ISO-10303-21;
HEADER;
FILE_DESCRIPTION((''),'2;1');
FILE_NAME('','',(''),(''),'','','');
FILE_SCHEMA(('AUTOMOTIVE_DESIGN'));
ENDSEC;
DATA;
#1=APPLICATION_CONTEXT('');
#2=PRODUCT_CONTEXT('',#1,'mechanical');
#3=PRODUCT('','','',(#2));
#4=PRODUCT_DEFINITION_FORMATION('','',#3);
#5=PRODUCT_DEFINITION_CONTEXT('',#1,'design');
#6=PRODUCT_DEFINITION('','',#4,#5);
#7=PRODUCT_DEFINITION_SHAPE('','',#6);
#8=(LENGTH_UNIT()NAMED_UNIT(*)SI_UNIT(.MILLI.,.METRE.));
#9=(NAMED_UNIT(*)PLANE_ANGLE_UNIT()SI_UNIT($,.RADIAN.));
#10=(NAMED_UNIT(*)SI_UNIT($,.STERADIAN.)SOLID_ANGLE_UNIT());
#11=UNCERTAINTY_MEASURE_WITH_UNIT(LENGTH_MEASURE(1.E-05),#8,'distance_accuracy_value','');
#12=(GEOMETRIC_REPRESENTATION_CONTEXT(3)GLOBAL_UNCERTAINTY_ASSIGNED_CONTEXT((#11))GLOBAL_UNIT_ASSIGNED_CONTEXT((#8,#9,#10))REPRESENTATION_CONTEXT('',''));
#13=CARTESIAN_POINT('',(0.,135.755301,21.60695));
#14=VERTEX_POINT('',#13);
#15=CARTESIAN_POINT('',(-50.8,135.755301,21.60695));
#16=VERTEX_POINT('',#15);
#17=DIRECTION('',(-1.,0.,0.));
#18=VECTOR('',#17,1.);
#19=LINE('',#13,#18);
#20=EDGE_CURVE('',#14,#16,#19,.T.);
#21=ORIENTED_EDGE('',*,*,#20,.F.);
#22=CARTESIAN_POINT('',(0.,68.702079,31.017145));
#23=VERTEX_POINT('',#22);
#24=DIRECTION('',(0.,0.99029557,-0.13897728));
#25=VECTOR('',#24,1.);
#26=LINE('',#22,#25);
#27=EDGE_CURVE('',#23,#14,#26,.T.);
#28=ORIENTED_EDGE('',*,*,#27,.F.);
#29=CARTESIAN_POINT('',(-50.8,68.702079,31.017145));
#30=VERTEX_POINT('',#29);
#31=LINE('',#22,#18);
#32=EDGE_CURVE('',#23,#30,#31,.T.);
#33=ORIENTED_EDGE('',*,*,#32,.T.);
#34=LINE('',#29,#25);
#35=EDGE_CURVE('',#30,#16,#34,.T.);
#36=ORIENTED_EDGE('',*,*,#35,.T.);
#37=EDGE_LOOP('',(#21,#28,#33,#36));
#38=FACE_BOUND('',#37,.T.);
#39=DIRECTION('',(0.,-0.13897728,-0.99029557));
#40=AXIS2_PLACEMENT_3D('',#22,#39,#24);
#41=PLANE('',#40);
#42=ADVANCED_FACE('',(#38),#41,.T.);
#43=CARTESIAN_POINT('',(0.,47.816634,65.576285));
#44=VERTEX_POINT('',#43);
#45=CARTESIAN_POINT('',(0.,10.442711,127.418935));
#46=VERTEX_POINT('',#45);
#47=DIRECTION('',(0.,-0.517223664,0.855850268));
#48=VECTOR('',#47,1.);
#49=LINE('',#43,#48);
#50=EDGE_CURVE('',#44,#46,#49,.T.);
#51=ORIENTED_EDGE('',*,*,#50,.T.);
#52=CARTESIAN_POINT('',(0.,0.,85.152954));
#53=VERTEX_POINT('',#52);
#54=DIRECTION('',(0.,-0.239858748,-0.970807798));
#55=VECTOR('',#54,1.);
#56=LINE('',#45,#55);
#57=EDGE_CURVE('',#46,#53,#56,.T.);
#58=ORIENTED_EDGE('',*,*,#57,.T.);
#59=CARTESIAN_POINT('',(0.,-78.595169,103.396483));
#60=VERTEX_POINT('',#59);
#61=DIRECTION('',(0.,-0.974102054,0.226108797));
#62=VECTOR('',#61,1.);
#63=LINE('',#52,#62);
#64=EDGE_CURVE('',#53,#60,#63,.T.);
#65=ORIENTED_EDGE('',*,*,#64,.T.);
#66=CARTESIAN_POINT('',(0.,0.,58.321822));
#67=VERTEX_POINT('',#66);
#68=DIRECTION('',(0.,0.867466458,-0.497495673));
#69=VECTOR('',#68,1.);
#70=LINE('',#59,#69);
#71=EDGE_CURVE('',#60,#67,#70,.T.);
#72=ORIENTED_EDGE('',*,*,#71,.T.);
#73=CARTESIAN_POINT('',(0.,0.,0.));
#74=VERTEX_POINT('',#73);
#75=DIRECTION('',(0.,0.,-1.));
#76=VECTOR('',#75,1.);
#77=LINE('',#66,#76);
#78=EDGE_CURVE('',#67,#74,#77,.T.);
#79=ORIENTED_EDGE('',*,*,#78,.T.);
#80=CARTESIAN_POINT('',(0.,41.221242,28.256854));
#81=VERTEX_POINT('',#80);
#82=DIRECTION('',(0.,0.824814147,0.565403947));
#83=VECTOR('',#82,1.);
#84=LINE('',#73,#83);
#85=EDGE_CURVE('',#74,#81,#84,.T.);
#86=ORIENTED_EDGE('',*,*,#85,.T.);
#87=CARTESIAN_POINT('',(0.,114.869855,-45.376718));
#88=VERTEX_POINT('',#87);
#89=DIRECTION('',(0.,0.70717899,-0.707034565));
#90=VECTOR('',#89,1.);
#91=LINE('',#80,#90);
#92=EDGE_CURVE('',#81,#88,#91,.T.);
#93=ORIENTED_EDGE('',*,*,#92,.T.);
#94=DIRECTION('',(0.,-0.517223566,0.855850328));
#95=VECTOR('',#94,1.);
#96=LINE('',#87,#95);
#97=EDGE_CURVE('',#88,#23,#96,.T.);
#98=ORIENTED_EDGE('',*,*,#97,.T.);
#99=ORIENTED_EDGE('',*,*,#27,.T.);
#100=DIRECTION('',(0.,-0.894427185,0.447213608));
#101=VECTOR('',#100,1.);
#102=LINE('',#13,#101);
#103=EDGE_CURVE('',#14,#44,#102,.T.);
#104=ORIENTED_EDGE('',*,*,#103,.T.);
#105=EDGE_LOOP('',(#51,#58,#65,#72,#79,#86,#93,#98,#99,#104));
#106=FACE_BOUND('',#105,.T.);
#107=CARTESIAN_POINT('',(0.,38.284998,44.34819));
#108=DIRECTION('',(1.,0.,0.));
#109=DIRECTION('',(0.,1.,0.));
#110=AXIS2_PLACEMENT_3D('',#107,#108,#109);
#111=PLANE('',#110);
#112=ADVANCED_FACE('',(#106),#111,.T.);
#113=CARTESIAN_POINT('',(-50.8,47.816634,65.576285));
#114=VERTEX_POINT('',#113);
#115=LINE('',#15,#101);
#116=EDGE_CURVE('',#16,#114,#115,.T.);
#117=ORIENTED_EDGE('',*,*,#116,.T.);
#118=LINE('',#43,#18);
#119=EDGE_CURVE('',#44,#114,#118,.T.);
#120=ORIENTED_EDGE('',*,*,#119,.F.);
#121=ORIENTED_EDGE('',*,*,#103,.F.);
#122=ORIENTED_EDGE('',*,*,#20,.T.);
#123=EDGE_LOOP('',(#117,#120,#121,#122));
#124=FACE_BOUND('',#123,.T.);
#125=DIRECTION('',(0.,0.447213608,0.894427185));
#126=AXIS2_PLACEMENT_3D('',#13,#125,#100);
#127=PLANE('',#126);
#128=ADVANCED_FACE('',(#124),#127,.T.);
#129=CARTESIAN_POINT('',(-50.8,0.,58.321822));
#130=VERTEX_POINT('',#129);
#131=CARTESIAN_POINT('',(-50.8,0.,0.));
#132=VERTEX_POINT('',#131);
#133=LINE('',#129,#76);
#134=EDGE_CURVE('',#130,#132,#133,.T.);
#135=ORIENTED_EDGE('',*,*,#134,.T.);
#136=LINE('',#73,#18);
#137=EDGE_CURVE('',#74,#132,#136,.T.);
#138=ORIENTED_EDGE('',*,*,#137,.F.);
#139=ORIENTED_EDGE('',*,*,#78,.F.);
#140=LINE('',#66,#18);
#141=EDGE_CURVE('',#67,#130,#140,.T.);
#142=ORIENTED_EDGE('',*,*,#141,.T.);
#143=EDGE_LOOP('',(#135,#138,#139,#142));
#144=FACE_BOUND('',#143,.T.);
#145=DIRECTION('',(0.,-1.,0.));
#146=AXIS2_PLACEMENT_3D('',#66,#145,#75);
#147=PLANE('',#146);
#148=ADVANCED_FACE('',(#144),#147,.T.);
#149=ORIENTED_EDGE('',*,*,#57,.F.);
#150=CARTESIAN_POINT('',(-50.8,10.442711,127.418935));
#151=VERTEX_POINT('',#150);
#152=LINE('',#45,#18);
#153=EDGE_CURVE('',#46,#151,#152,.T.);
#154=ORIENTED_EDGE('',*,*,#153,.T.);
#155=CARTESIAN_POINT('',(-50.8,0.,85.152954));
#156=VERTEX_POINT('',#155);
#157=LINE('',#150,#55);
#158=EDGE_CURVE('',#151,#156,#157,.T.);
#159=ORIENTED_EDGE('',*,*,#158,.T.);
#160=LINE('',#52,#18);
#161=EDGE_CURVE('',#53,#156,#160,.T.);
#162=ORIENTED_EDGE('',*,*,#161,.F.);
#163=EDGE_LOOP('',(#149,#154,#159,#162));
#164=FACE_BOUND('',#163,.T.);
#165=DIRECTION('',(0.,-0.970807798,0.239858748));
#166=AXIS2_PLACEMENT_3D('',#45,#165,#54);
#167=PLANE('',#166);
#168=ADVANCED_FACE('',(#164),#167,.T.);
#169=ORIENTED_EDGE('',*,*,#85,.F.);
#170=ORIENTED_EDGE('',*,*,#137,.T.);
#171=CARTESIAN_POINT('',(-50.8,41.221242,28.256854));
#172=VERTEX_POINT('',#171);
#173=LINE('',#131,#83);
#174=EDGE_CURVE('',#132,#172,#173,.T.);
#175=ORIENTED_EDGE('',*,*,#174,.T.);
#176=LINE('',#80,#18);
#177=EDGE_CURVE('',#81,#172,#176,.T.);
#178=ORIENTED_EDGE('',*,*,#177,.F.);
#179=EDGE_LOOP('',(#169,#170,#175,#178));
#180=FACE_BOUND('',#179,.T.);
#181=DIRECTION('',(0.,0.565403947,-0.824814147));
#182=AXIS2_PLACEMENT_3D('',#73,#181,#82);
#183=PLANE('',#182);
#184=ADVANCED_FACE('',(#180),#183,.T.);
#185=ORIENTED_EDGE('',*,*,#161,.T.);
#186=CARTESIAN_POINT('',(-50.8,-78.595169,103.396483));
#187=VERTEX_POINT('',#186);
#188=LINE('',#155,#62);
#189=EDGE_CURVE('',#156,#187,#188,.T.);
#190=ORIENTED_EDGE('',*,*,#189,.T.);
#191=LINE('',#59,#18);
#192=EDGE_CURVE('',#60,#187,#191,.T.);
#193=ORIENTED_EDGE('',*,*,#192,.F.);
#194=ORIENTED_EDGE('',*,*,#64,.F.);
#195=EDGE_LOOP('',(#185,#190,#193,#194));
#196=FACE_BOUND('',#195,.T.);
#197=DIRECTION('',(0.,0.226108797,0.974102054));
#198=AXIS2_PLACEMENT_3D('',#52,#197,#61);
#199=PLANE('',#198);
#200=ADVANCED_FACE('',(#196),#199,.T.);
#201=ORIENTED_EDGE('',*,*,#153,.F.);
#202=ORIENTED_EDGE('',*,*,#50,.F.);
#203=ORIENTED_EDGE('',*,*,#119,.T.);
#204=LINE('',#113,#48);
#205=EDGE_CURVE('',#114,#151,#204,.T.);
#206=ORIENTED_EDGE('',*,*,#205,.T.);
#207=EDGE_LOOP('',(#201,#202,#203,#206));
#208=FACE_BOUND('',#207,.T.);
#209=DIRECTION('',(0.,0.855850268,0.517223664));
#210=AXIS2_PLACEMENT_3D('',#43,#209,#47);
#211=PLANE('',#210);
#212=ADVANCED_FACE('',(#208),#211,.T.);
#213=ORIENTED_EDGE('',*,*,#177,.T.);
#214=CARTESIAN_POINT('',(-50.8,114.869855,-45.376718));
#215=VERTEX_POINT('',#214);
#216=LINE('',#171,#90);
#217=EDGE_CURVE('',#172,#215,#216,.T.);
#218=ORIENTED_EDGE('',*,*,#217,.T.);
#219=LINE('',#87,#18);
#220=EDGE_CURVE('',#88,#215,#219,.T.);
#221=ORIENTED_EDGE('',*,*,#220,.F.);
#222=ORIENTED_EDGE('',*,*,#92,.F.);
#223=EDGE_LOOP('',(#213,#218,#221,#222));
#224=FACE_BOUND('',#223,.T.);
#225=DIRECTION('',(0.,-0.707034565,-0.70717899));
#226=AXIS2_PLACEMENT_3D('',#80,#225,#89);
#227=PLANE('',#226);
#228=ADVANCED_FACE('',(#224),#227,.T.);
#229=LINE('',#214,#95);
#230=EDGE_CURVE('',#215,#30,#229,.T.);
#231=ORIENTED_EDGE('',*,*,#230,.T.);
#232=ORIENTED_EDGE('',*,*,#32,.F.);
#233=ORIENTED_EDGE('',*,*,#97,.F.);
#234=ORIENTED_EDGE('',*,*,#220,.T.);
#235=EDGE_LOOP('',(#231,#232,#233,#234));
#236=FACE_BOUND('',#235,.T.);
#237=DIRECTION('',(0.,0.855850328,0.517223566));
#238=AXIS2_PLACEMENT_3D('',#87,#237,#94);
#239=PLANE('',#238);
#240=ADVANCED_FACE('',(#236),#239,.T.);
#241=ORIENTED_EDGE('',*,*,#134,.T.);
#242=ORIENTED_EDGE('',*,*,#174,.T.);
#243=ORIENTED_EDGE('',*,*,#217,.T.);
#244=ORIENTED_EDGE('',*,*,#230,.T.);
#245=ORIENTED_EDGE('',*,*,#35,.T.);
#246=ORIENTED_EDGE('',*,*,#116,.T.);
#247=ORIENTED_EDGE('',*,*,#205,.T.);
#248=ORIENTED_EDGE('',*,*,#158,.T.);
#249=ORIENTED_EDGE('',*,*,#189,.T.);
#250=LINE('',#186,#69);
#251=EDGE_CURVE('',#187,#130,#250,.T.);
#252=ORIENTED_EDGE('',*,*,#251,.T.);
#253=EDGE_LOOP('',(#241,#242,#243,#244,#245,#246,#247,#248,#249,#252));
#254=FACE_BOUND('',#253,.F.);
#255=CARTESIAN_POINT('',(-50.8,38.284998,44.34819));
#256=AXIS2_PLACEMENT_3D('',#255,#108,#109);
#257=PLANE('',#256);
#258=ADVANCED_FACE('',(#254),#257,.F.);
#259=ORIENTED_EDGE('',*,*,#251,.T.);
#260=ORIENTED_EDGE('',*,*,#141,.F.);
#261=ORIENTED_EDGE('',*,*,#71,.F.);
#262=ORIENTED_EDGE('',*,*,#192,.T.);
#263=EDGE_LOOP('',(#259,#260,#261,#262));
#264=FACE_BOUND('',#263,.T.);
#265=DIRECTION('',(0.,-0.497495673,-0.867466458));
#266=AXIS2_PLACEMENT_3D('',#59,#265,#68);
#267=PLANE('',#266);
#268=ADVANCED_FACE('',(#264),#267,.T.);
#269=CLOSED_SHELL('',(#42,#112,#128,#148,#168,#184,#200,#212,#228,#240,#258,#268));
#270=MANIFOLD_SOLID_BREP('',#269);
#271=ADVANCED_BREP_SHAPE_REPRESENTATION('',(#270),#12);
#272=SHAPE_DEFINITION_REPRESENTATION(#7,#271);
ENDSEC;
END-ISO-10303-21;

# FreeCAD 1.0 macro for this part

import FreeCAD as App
import Part
import Sketcher

V = App.Vector
Q = App.Units.Quantity


def add_polygon(sketch, points):
    """Adds a closed chain of lines whose ends are joined by coincident constraints."""
    first, n = sketch.GeometryCount, len(points)
    for a, b in zip(points, points[1:] + points[:1]):
        sketch.addGeometry(Part.LineSegment(App.Vector(*a, 0), App.Vector(*b, 0)), False)
    for i in range(n):
        sketch.addConstraint(Sketcher.Constraint("Coincident", first + i, 2, first + (i + 1) % n, 1))

doc = App.newDocument("Part")
body = doc.addObject("PartDesign::Body", "Body")

sketch1 = body.newObject("Sketcher::SketchObject", "Sketch")
sketch1.AttachmentSupport = (doc.getObject("YZ_Plane"), [""])
sketch1.MapMode = "FlatFace"
add_polygon(sketch1, [(0, 58), (0, 0), (41, 28), (115, -45), (69, 31), (136, 22), (48, 66), (10, 127), (0, 85), (-79, 103)])
sketch1.addConstraint([
    Sketcher.Constraint("Vertical", 0),
    Sketcher.Constraint("Coincident", 0, 2, -1, 1),
    Sketcher.Constraint("PointOnObject", 7, 2, -2),
    Sketcher.Constraint("Parallel", 3, 6),
    Sketcher.Constraint("Distance", 1, 49.9764),
    Sketcher.Constraint("DistanceY", 0, 2, 0, 1, 58.321822),
    Sketcher.Constraint("DistanceX", -1, 1, 4, 2, 135.755301),
    Sketcher.Constraint("DistanceY", 1, 2, 7, 2, 56.8961),
    Sketcher.Constraint("DistanceY", 5, 2, 8, 2, 37.820198),
    Sketcher.Constraint("Distance", 4, 67.710312),
    Sketcher.Constraint("Distance", 5, 98.318419),
    Sketcher.Constraint("Distance", 7, 43.53692),
    Sketcher.Constraint("Distance", 9, 90.603122),
    Sketcher.Constraint("DistanceX", -1, 1, 1, 2, 41.221242),
    Sketcher.Constraint("DistanceX", -1, 1, 3, 2, 68.702079),
    Sketcher.Constraint("DistanceY", -1, 1, 4, 2, 21.60695),
    Sketcher.Constraint("DistanceX", -1, 1, 6, 2, 10.442711),
    Sketcher.Constraint("DistanceX", 8, 2, -1, 1, 78.595169),
    Sketcher.Constraint("DistanceY", 2, 2, 1, 2, 73.633572),
])
pad1 = body.newObject("PartDesign::Pad", "Pad")
pad1.Profile = sketch1
pad1.Length = Q("2 in")
pad1.Reversed = True

doc.recompute()
